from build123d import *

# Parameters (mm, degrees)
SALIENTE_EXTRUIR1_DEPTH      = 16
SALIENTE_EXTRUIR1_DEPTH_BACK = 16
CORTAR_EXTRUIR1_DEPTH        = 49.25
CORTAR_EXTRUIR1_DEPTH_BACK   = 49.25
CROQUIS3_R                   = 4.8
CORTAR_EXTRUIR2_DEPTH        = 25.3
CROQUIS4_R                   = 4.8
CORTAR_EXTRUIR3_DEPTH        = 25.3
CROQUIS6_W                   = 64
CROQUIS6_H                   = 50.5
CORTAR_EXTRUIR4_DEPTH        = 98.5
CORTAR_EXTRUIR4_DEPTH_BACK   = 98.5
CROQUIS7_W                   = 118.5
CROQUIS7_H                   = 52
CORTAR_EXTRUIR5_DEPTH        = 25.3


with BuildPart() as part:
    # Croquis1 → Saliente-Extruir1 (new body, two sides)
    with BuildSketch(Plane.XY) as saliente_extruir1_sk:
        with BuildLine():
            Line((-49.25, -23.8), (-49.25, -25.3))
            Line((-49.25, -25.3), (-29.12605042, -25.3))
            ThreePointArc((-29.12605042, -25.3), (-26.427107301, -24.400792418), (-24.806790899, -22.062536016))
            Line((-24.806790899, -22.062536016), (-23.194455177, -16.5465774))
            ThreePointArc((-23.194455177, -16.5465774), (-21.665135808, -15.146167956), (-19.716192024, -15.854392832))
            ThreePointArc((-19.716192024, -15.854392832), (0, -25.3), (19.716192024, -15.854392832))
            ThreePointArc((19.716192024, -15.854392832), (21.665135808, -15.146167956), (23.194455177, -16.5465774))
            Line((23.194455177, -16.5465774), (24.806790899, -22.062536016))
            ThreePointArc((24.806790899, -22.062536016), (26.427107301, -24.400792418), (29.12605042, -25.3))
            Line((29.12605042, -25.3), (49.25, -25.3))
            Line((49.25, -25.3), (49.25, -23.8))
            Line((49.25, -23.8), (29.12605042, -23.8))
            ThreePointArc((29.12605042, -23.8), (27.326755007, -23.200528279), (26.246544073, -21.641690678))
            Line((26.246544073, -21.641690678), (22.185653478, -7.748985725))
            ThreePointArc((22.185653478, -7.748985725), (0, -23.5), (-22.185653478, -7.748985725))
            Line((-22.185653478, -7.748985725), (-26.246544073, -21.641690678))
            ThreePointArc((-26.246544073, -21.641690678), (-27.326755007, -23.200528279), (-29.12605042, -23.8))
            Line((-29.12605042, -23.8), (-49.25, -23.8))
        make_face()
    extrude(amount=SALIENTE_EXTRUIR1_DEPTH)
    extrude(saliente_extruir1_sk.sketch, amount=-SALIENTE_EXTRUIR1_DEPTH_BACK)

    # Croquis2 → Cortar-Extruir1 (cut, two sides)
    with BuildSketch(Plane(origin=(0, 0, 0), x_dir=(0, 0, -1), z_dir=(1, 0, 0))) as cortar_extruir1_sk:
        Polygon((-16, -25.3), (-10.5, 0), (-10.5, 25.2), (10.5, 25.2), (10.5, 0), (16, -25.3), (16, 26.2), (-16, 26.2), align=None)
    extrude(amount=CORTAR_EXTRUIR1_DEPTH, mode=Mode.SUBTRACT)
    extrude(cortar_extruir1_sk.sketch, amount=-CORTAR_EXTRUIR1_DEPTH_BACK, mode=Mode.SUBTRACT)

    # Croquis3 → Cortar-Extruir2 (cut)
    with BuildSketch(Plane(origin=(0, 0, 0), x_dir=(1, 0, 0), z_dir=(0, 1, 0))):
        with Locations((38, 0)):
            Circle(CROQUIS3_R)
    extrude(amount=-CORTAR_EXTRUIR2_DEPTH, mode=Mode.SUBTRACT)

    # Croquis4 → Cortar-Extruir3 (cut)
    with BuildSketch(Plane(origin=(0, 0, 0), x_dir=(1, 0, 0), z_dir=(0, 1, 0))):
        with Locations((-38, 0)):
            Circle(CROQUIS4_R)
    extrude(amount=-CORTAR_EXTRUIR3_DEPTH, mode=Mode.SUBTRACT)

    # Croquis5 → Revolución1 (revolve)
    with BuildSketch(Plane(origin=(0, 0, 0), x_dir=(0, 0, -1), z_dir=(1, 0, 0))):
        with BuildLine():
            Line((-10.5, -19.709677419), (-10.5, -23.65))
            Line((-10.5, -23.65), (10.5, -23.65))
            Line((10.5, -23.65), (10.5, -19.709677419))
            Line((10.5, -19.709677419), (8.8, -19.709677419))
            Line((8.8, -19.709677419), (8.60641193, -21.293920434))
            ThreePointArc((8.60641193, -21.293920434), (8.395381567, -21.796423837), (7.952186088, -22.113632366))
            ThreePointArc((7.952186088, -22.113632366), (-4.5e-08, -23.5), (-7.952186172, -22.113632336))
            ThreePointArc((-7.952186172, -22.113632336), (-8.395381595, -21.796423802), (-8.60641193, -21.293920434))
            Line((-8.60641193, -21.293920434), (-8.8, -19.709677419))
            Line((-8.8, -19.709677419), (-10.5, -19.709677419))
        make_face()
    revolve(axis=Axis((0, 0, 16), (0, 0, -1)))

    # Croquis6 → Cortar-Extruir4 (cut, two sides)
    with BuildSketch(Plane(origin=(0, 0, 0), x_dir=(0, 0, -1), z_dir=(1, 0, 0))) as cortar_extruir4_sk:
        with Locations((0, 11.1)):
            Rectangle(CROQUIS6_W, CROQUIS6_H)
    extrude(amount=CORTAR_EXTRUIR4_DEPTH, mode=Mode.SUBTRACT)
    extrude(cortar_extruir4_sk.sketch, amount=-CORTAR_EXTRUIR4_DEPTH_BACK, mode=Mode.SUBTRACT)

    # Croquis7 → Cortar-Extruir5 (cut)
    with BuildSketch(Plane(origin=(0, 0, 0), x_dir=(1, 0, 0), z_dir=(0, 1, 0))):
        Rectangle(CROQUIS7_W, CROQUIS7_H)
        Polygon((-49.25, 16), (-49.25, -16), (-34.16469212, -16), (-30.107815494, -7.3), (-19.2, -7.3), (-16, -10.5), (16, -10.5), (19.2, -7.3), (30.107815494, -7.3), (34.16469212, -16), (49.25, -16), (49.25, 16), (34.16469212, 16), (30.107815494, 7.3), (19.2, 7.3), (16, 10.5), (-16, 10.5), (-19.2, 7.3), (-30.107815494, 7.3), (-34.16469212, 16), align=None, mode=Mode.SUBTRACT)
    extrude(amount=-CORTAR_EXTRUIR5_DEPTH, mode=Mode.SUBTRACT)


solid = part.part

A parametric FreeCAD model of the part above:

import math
import FreeCAD as App
import Part
import Sketcher

V = App.Vector
Q = App.Units.Quantity

doc = App.newDocument("Part")
body = doc.addObject("PartDesign::Body", "Body")

# Sketch on XY plane
sketch1 = body.newObject("Sketcher::SketchObject", "Sketch")
sketch1.AttachmentSupport = (doc.getObject("XY_Plane"), [""])
sketch1.MapMode = "FlatFace"
sketch1.addGeometry([
    Part.LineSegment(V(-49.2, -23.8, 0), V(-49.2, -25.3, 0)),  # 0
    Part.LineSegment(V(-49.2, -25.3, 0), V(-29.1, -25.3, 0)),  # 1
    Part.ArcOfCircle(Part.Circle(V(-29.1, -20.8, 0), V(0, 0, 1), 4.5), math.radians(-90), math.radians(-16)),  # 2
    Part.LineSegment(V(-24.8, -22.1, 0), V(-23.2, -16.5, 0)),  # 3
    Part.ArcOfCircle(Part.Circle(V(-21.3, -17.1, 0), V(0, 0, 1), 2), math.radians(39), math.radians(164)),  # 4
    Part.ArcOfCircle(Part.Circle(V(0, 0, 0), V(0, 0, 1), 25.3), math.radians(-141), math.radians(-39)),  # 5
    Part.ArcOfCircle(Part.Circle(V(21.3, -17.1, 0), V(0, 0, 1), 2), math.radians(16), math.radians(141)),  # 6
    Part.LineSegment(V(23.2, -16.5, 0), V(24.8, -22.1, 0)),  # 7
    Part.ArcOfCircle(Part.Circle(V(29.1, -20.8, 0), V(0, 0, 1), 4.5), math.radians(-164), math.radians(-90)),  # 8
    Part.LineSegment(V(29.1, -25.3, 0), V(49.2, -25.3, 0)),  # 9
    Part.LineSegment(V(49.2, -25.3, 0), V(49.2, -23.8, 0)),  # 10
    Part.LineSegment(V(49.2, -23.8, 0), V(29.1, -23.8, 0)),  # 11
    Part.ArcOfCircle(Part.Circle(V(29.1, -20.8, 0), V(0, 0, 1), 3), math.radians(-164), math.radians(-90)),  # 12
    Part.LineSegment(V(26.2, -21.6, 0), V(22.2, -7.7, 0)),  # 13
    Part.ArcOfCircle(Part.Circle(V(0, 0, 0), V(0, 0, 1), 23.5), math.radians(-161), math.radians(-19)),  # 14
    Part.LineSegment(V(-22.2, -7.7, 0), V(-26.2, -21.6, 0)),  # 15
    Part.ArcOfCircle(Part.Circle(V(-29.1, -20.8, 0), V(0, 0, 1), 3), math.radians(-90), math.radians(-16)),  # 16
    Part.LineSegment(V(-29.1, -23.8, 0), V(-49.2, -23.8, 0)),  # 17
], False)
sketch1.addConstraint([
    Sketcher.Constraint("Coincident", 0, 2, 1, 1),
    Sketcher.Constraint("Tangent", 1, 2, 2, 1),
    Sketcher.Constraint("Tangent", 2, 2, 3, 1),
    Sketcher.Constraint("Tangent", 3, 2, 4, 2),
    Sketcher.Constraint("Tangent", 4, 1, 5, 1),
    Sketcher.Constraint("Tangent", 5, 2, 6, 2),
    Sketcher.Constraint("Tangent", 6, 1, 7, 1),
    Sketcher.Constraint("Tangent", 7, 2, 8, 1),
    Sketcher.Constraint("Tangent", 8, 2, 9, 1),
    Sketcher.Constraint("Coincident", 9, 2, 10, 1),
    Sketcher.Constraint("Coincident", 10, 2, 11, 1),
    Sketcher.Constraint("Tangent", 11, 2, 12, 2),
    Sketcher.Constraint("Tangent", 12, 1, 13, 1),
    Sketcher.Constraint("Coincident", 13, 2, 14, 2),
    Sketcher.Constraint("Coincident", 14, 1, 15, 1),
    Sketcher.Constraint("Tangent", 15, 2, 16, 2),
    Sketcher.Constraint("Tangent", 16, 1, 17, 1),
    Sketcher.Constraint("Coincident", 17, 2, 0, 1),
    Sketcher.Constraint("Vertical", 0),
    Sketcher.Constraint("Horizontal", 1),
    Sketcher.Constraint("Horizontal", 9),
    Sketcher.Constraint("Vertical", 10),
    Sketcher.Constraint("Horizontal", 11),
    Sketcher.Constraint("Horizontal", 17),
    Sketcher.Constraint("Coincident", 5, 3, -1, 1),
    Sketcher.Constraint("Coincident", 14, 3, -1, 1),
    Sketcher.Constraint("Coincident", 12, 3, 8, 3),
    Sketcher.Constraint("Coincident", 16, 3, 2, 3),
    Sketcher.Constraint("Equal", 4, 6),
    Sketcher.Constraint("Equal", 2, 8),
    Sketcher.Constraint("Equal", 12, 16),
    Sketcher.Constraint("Symmetric", 2, 3, 8, 3, -2),
    Sketcher.Constraint("Parallel", 7, 13),
    Sketcher.Constraint("Parallel", 3, 15),
    Sketcher.Constraint("Horizontal", 4, 3, 6, 3),
    Sketcher.Constraint("Equal", 1, 9),
    Sketcher.Constraint("Radius", 4, Q("2 mm")),
    Sketcher.Constraint("Radius", 12, Q("3 mm")),
    Sketcher.Constraint("Radius", 2, Q("4.5 mm")),
    Sketcher.Constraint("Radius", 5, Q("25.3 mm")),
    Sketcher.Constraint("Radius", 14, Q("23.5 mm")),
    Sketcher.Constraint("DistanceY", 2, 3, -1, 1, Q("20.8 mm")),
    Sketcher.Constraint("DistanceX", 0, 2, -1, 1, Q("49.25 mm")),
    Sketcher.Constraint("DistanceX", 1, 1, 1, 2, Q("20.12395 mm")),
    Sketcher.Constraint("DistanceX", 2, 2, 4, 1, Q("5.090599 mm")),
])
pad1 = body.newObject("PartDesign::Pad", "Pad")
pad1.Profile = sketch1
pad1.Type = "TwoLengths"
pad1.Length = 16
pad1.Length2 = 16

# Sketch on YZ plane
sketch2 = body.newObject("Sketcher::SketchObject", "Sketch001")
sketch2.AttachmentSupport = (doc.getObject("YZ_Plane"), [""])
sketch2.MapMode = "FlatFace"
sketch2.addGeometry([
    Part.LineSegment(V(-25, 16, 0), V(0, 10, 0)),  # 0
    Part.LineSegment(V(0, 10, 0), V(25, 10, 0)),  # 1
    Part.LineSegment(V(25, 10, 0), V(25, -10, 0)),  # 2
    Part.LineSegment(V(25, -10, 0), V(0, -10, 0)),  # 3
    Part.LineSegment(V(0, -10, 0), V(-25, -16, 0)),  # 4
    Part.LineSegment(V(-25, -16, 0), V(26, -16, 0)),  # 5
    Part.LineSegment(V(26, -16, 0), V(26, 16, 0)),  # 6
    Part.LineSegment(V(26, 16, 0), V(-25, 16, 0)),  # 7
], False)
sketch2.addConstraint([
    Sketcher.Constraint("Coincident", 0, 2, 1, 1),
    Sketcher.Constraint("Coincident", 1, 2, 2, 1),
    Sketcher.Constraint("Coincident", 2, 2, 3, 1),
    Sketcher.Constraint("Coincident", 3, 2, 4, 1),
    Sketcher.Constraint("Coincident", 4, 2, 5, 1),
    Sketcher.Constraint("Coincident", 5, 2, 6, 1),
    Sketcher.Constraint("Coincident", 6, 2, 7, 1),
    Sketcher.Constraint("Coincident", 7, 2, 0, 1),
    Sketcher.Constraint("Horizontal", 1),
    Sketcher.Constraint("Vertical", 2),
    Sketcher.Constraint("Horizontal", 3),
    Sketcher.Constraint("Horizontal", 5),
    Sketcher.Constraint("Vertical", 6),
    Sketcher.Constraint("Horizontal", 7),
    Sketcher.Constraint("Symmetric", 0, 2, 3, 2, -1, 1),
    Sketcher.Constraint("Symmetric", 4, 2, 7, 2, -1),
    Sketcher.Constraint("PointOnObject", 0, 2, -2),
    Sketcher.Constraint("DistanceY", 2, 2, 2, 1, Q("21 mm")),
    Sketcher.Constraint("DistanceY", 6, 1, 6, 2, Q("32 mm")),
    Sketcher.Constraint("DistanceX", 1, 1, 1, 2, Q("25.2 mm")),
    Sketcher.Constraint("DistanceX", 5, 1, 5, 2, Q("51.5 mm")),
    Sketcher.Constraint("DistanceX", 2, 2, 5, 2, Q("1 mm")),
])
pocket1 = body.newObject("PartDesign::Pocket", "Pocket")
pocket1.Profile = sketch2
pocket1.Type = "ThroughAll"
pocket1.Midplane = True

# Sketch on XZ plane
sketch3 = body.newObject("Sketcher::SketchObject", "Sketch002")
sketch3.AttachmentSupport = (doc.getObject("XZ_Plane"), [""])
sketch3.MapMode = "FlatFace"
sketch3.addGeometry(Part.Circle(V(38, 0, 0), V(0, 0, 1), 4.8), False)
sketch3.addConstraint([
    Sketcher.Constraint("PointOnObject", 0, 3, -1),
    Sketcher.Constraint("Diameter", 0, Q("9.6 mm")),
    Sketcher.Constraint("DistanceX", -1, 1, 0, 3, Q("38 mm")),
])
pocket2 = body.newObject("PartDesign::Pocket", "Pocket001")
pocket2.Profile = sketch3
pocket2.Length = 25.3
pocket2.Reversed = True

# Sketch on XZ plane
sketch4 = body.newObject("Sketcher::SketchObject", "Sketch003")
sketch4.AttachmentSupport = (doc.getObject("XZ_Plane"), [""])
sketch4.MapMode = "FlatFace"
sketch4.addGeometry(Part.Circle(V(-38, 0, 0), V(0, 0, 1), 4.8), False)
sketch4.addConstraint([
    Sketcher.Constraint("PointOnObject", 0, 3, -1),
    Sketcher.Constraint("Diameter", 0, Q("9.6 mm")),
    Sketcher.Constraint("DistanceX", 0, 3, -1, 1, Q("38 mm")),
])
pocket3 = body.newObject("PartDesign::Pocket", "Pocket002")
pocket3.Profile = sketch4
pocket3.Length = 25.3
pocket3.Reversed = True

# Sketch on YZ plane
sketch5 = body.newObject("Sketcher::SketchObject", "Sketch004")
sketch5.AttachmentSupport = (doc.getObject("YZ_Plane"), [""])
sketch5.MapMode = "FlatFace"
sketch5.addGeometry([
    Part.LineSegment(V(-19.7, 10.5, 0), V(-23.6, 10.5, 0)),  # 0
    Part.LineSegment(V(-23.6, 10.5, 0), V(-23.6, -10.5, 0)),  # 1
    Part.LineSegment(V(-23.6, -10.5, 0), V(-19.7, -10.5, 0)),  # 2
    Part.LineSegment(V(-19.7, -10.5, 0), V(-19.7, -8.8, 0)),  # 3
    Part.LineSegment(V(-19.7, -8.8, 0), V(-21.3, -8.6, 0)),  # 4
    Part.ArcOfCircle(Part.Circle(V(-21.2, -7.6, 0), V(0, 0, 1), 1), math.radians(-160), math.radians(-97)),  # 5
    Part.ArcOfCircle(Part.Circle(V(0, 0, 0), V(0, 0, 1), 23.5), math.radians(160), math.radians(200)),  # 6
    Part.ArcOfCircle(Part.Circle(V(-21.2, 7.6, 0), V(0, 0, 1), 1), math.radians(97), math.radians(160)),  # 7
    Part.LineSegment(V(-21.3, 8.6, 0), V(-19.7, 8.8, 0)),  # 8
    Part.LineSegment(V(-19.7, 8.8, 0), V(-19.7, 10.5, 0)),  # 9
], False)
sketch5.addConstraint([
    Sketcher.Constraint("Coincident", 0, 2, 1, 1),
    Sketcher.Constraint("Coincident", 1, 2, 2, 1),
    Sketcher.Constraint("Coincident", 2, 2, 3, 1),
    Sketcher.Constraint("Coincident", 3, 2, 4, 1),
    Sketcher.Constraint("Tangent", 4, 2, 5, 2),
    Sketcher.Constraint("Tangent", 5, 1, 6, 2),
    Sketcher.Constraint("Tangent", 6, 1, 7, 2),
    Sketcher.Constraint("Tangent", 7, 1, 8, 1),
    Sketcher.Constraint("Coincident", 8, 2, 9, 1),
    Sketcher.Constraint("Coincident", 9, 2, 0, 1),
    Sketcher.Constraint("Horizontal", 0),
    Sketcher.Constraint("Vertical", 1),
    Sketcher.Constraint("Horizontal", 2),
    Sketcher.Constraint("Vertical", 3),
    Sketcher.Constraint("Vertical", 9),
    Sketcher.Constraint("Coincident", 6, 3, -1, 1),
    Sketcher.Constraint("Equal", 5, 7),
    Sketcher.Constraint("Symmetric", 4, 2, 7, 1, -1),
    Sketcher.Constraint("Symmetric", 2, 2, 9, 2, -1),
    Sketcher.Constraint("Radius", 5, Q("1 mm")),
    Sketcher.Constraint("Radius", 6, Q("23.5 mm")),
    Sketcher.Constraint("DistanceY", 1, 2, 1, 1, Q("21 mm")),
    Sketcher.Constraint("DistanceY", 3, 1, 3, 2, Q("1.7 mm")),
    Sketcher.Constraint("DistanceX", 0, 2, -1, 1, Q("23.65 mm")),
    Sketcher.Constraint("DistanceY", 4, 2, 6, 1, Q("16.558598 mm")),
    Sketcher.Constraint("DistanceX", 0, 2, 0, 1, Q("3.940323 mm")),
])
revolution = body.newObject("PartDesign::Revolution", "Revolution")
revolution.Profile = sketch5
revolution.ReferenceAxis = (sketch5, ["V_Axis"])
revolution.Angle = 360

# Sketch on YZ plane
sketch6 = body.newObject("Sketcher::SketchObject", "Sketch005")
sketch6.AttachmentSupport = (doc.getObject("YZ_Plane"), [""])
sketch6.MapMode = "FlatFace"
sketch6.addGeometry([
    Part.LineSegment(V(36, 32, 0), V(-14, 32, 0)),
    Part.LineSegment(V(-14, 32, 0), V(-14, -32, 0)),
    Part.LineSegment(V(-14, -32, 0), V(36, -32, 0)),
    Part.LineSegment(V(36, -32, 0), V(36, 32, 0)),
], False)
sketch6.addConstraint([
    Sketcher.Constraint("Coincident", 0, 2, 1, 1),
    Sketcher.Constraint("Coincident", 1, 2, 2, 1),
    Sketcher.Constraint("Coincident", 2, 2, 3, 1),
    Sketcher.Constraint("Coincident", 3, 2, 0, 1),
    Sketcher.Constraint("Horizontal", 0),
    Sketcher.Constraint("Vertical", 1),
    Sketcher.Constraint("Horizontal", 2),
    Sketcher.Constraint("Vertical", 3),
    Sketcher.Constraint("DistanceY", 1, 2, 1, 1, Q("64 mm")),
    Sketcher.Constraint("DistanceX", 0, 2, 0, 1, Q("50.5 mm")),
    Sketcher.Constraint("DistanceY", -1, 1, 0, 2, Q("32 mm")),
    Sketcher.Constraint("DistanceX", 0, 2, -1, 1, Q("14.15 mm")),
])
pocket4 = body.newObject("PartDesign::Pocket", "Pocket003")
pocket4.Profile = sketch6
pocket4.Type = "ThroughAll"
pocket4.Midplane = True

# Sketch on XZ plane
sketch7 = body.newObject("Sketcher::SketchObject", "Sketch006")
sketch7.AttachmentSupport = (doc.getObject("XZ_Plane"), [""])
sketch7.MapMode = "FlatFace"
sketch7.addGeometry([
    Part.LineSegment(V(-59.2, -26, 0), V(-59.2, 26, 0)),  # 0
    Part.LineSegment(V(-59.2, 26, 0), V(59.2, 26, 0)),  # 1
    Part.LineSegment(V(59.2, 26, 0), V(59.2, -26, 0)),  # 2
    Part.LineSegment(V(59.2, -26, 0), V(-59.2, -26, 0)),  # 3
    Part.LineSegment(V(-49.2, 16, 0), V(-49.2, -16, 0)),  # 4
    Part.LineSegment(V(-49.2, -16, 0), V(-34.2, -16, 0)),  # 5
    Part.LineSegment(V(-34.2, -16, 0), V(-30.1, -7.3, 0)),  # 6
    Part.LineSegment(V(-30.1, -7.3, 0), V(-19.2, -7.3, 0)),  # 7
    Part.LineSegment(V(-19.2, -7.3, 0), V(-16, -10.5, 0)),  # 8
    Part.LineSegment(V(-16, -10.5, 0), V(16, -10.5, 0)),  # 9
    Part.LineSegment(V(16, -10.5, 0), V(19.2, -7.3, 0)),  # 10
    Part.LineSegment(V(19.2, -7.3, 0), V(30.1, -7.3, 0)),  # 11
    Part.LineSegment(V(30.1, -7.3, 0), V(34.2, -16, 0)),  # 12
    Part.LineSegment(V(34.2, -16, 0), V(49.2, -16, 0)),  # 13
    Part.LineSegment(V(49.2, -16, 0), V(49.2, 16, 0)),  # 14
    Part.LineSegment(V(49.2, 16, 0), V(34.2, 16, 0)),  # 15
    Part.LineSegment(V(34.2, 16, 0), V(30.1, 7.3, 0)),  # 16
    Part.LineSegment(V(30.1, 7.3, 0), V(19.2, 7.3, 0)),  # 17
    Part.LineSegment(V(19.2, 7.3, 0), V(16, 10.5, 0)),  # 18
    Part.LineSegment(V(16, 10.5, 0), V(-16, 10.5, 0)),  # 19
    Part.LineSegment(V(-16, 10.5, 0), V(-19.2, 7.3, 0)),  # 20
    Part.LineSegment(V(-19.2, 7.3, 0), V(-30.1, 7.3, 0)),  # 21
    Part.LineSegment(V(-30.1, 7.3, 0), V(-34.2, 16, 0)),  # 22
    Part.LineSegment(V(-34.2, 16, 0), V(-49.2, 16, 0)),  # 23
], False)
sketch7.addConstraint([
    Sketcher.Constraint("Coincident", 0, 2, 1, 1),
    Sketcher.Constraint("Coincident", 1, 2, 2, 1),
    Sketcher.Constraint("Coincident", 2, 2, 3, 1),
    Sketcher.Constraint("Coincident", 3, 2, 0, 1),
    Sketcher.Constraint("Coincident", 4, 2, 5, 1),
    Sketcher.Constraint("Coincident", 5, 2, 6, 1),
    Sketcher.Constraint("Coincident", 6, 2, 7, 1),
    Sketcher.Constraint("Coincident", 7, 2, 8, 1),
    Sketcher.Constraint("Coincident", 8, 2, 9, 1),
    Sketcher.Constraint("Coincident", 9, 2, 10, 1),
    Sketcher.Constraint("Coincident", 10, 2, 11, 1),
    Sketcher.Constraint("Coincident", 11, 2, 12, 1),
    Sketcher.Constraint("Coincident", 12, 2, 13, 1),
    Sketcher.Constraint("Coincident", 13, 2, 14, 1),
    Sketcher.Constraint("Coincident", 14, 2, 15, 1),
    Sketcher.Constraint("Coincident", 15, 2, 16, 1),
    Sketcher.Constraint("Coincident", 16, 2, 17, 1),
    Sketcher.Constraint("Coincident", 17, 2, 18, 1),
    Sketcher.Constraint("Coincident", 18, 2, 19, 1),
    Sketcher.Constraint("Coincident", 19, 2, 20, 1),
    Sketcher.Constraint("Coincident", 20, 2, 21, 1),
    Sketcher.Constraint("Coincident", 21, 2, 22, 1),
    Sketcher.Constraint("Coincident", 22, 2, 23, 1),
    Sketcher.Constraint("Coincident", 23, 2, 4, 1),
    Sketcher.Constraint("Vertical", 0),
    Sketcher.Constraint("Horizontal", 1),
    Sketcher.Constraint("Vertical", 2),
    Sketcher.Constraint("Horizontal", 3),
    Sketcher.Constraint("Vertical", 4),
    Sketcher.Constraint("Horizontal", 5),
    Sketcher.Constraint("Horizontal", 7),
    Sketcher.Constraint("Horizontal", 9),
    Sketcher.Constraint("Horizontal", 11),
    Sketcher.Constraint("Horizontal", 13),
    Sketcher.Constraint("Vertical", 14),
    Sketcher.Constraint("Horizontal", 15),
    Sketcher.Constraint("Horizontal", 17),
    Sketcher.Constraint("Horizontal", 19),
    Sketcher.Constraint("Horizontal", 21),
    Sketcher.Constraint("Horizontal", 23),
    Sketcher.Constraint("Symmetric", 0, 2, 2, 2, -1, 1),
    Sketcher.Constraint("Symmetric", 4, 2, 14, 2, -1, 1),
    Sketcher.Constraint("Symmetric", 6, 2, 16, 2, -1, 1),
    Sketcher.Constraint("Symmetric", 8, 2, 18, 2, -1, 1),
    Sketcher.Constraint("Symmetric", 10, 2, 20, 2, -1, 1),
    Sketcher.Constraint("Symmetric", 12, 2, 22, 2, -1, 1),
    Sketcher.Constraint("Symmetric", 7, 2, 10, 2, -2),
    Sketcher.Constraint("Symmetric", 5, 2, 12, 2, -2),
    Sketcher.Constraint("Perpendicular", 8, 10),
    Sketcher.Constraint("Parallel", 6, 16),
    Sketcher.Constraint("Perpendicular", 10, 18),
    Sketcher.Constraint("Perpendicular", 18, 20),
    Sketcher.Constraint("Parallel", 12, 22),
    Sketcher.Constraint("Vertical", 11, 2, 16, 2),
    Sketcher.Constraint("Vertical", 9, 2, 18, 2),
    Sketcher.Constraint("Equal", 19, 4),
    Sketcher.Constraint("DistanceX", 9, 1, 9, 2, Q("32 mm")),
    Sketcher.Constraint("DistanceY", 0, 1, 0, 2, Q("52 mm")),
    Sketcher.Constraint("Angle", 6, Q("65 deg")),
    Sketcher.Constraint("DistanceX", 1, 1, 1, 2, Q("118.5 mm")),
    Sketcher.Constraint("DistanceX", 3, 2, 4, 2, Q("10 mm")),
    Sketcher.Constraint("DistanceY", 9, 2, 18, 2, Q("21 mm")),
    Sketcher.Constraint("DistanceY", 6, 2, -1, 1, Q("7.3 mm")),
    Sketcher.Constraint("DistanceX", 5, 1, 5, 2, Q("15.085308 mm")),
])
pocket5 = body.newObject("PartDesign::Pocket", "Pocket004")
pocket5.Profile = sketch7
pocket5.Length = 25.3
pocket5.Reversed = True

doc.recompute()
